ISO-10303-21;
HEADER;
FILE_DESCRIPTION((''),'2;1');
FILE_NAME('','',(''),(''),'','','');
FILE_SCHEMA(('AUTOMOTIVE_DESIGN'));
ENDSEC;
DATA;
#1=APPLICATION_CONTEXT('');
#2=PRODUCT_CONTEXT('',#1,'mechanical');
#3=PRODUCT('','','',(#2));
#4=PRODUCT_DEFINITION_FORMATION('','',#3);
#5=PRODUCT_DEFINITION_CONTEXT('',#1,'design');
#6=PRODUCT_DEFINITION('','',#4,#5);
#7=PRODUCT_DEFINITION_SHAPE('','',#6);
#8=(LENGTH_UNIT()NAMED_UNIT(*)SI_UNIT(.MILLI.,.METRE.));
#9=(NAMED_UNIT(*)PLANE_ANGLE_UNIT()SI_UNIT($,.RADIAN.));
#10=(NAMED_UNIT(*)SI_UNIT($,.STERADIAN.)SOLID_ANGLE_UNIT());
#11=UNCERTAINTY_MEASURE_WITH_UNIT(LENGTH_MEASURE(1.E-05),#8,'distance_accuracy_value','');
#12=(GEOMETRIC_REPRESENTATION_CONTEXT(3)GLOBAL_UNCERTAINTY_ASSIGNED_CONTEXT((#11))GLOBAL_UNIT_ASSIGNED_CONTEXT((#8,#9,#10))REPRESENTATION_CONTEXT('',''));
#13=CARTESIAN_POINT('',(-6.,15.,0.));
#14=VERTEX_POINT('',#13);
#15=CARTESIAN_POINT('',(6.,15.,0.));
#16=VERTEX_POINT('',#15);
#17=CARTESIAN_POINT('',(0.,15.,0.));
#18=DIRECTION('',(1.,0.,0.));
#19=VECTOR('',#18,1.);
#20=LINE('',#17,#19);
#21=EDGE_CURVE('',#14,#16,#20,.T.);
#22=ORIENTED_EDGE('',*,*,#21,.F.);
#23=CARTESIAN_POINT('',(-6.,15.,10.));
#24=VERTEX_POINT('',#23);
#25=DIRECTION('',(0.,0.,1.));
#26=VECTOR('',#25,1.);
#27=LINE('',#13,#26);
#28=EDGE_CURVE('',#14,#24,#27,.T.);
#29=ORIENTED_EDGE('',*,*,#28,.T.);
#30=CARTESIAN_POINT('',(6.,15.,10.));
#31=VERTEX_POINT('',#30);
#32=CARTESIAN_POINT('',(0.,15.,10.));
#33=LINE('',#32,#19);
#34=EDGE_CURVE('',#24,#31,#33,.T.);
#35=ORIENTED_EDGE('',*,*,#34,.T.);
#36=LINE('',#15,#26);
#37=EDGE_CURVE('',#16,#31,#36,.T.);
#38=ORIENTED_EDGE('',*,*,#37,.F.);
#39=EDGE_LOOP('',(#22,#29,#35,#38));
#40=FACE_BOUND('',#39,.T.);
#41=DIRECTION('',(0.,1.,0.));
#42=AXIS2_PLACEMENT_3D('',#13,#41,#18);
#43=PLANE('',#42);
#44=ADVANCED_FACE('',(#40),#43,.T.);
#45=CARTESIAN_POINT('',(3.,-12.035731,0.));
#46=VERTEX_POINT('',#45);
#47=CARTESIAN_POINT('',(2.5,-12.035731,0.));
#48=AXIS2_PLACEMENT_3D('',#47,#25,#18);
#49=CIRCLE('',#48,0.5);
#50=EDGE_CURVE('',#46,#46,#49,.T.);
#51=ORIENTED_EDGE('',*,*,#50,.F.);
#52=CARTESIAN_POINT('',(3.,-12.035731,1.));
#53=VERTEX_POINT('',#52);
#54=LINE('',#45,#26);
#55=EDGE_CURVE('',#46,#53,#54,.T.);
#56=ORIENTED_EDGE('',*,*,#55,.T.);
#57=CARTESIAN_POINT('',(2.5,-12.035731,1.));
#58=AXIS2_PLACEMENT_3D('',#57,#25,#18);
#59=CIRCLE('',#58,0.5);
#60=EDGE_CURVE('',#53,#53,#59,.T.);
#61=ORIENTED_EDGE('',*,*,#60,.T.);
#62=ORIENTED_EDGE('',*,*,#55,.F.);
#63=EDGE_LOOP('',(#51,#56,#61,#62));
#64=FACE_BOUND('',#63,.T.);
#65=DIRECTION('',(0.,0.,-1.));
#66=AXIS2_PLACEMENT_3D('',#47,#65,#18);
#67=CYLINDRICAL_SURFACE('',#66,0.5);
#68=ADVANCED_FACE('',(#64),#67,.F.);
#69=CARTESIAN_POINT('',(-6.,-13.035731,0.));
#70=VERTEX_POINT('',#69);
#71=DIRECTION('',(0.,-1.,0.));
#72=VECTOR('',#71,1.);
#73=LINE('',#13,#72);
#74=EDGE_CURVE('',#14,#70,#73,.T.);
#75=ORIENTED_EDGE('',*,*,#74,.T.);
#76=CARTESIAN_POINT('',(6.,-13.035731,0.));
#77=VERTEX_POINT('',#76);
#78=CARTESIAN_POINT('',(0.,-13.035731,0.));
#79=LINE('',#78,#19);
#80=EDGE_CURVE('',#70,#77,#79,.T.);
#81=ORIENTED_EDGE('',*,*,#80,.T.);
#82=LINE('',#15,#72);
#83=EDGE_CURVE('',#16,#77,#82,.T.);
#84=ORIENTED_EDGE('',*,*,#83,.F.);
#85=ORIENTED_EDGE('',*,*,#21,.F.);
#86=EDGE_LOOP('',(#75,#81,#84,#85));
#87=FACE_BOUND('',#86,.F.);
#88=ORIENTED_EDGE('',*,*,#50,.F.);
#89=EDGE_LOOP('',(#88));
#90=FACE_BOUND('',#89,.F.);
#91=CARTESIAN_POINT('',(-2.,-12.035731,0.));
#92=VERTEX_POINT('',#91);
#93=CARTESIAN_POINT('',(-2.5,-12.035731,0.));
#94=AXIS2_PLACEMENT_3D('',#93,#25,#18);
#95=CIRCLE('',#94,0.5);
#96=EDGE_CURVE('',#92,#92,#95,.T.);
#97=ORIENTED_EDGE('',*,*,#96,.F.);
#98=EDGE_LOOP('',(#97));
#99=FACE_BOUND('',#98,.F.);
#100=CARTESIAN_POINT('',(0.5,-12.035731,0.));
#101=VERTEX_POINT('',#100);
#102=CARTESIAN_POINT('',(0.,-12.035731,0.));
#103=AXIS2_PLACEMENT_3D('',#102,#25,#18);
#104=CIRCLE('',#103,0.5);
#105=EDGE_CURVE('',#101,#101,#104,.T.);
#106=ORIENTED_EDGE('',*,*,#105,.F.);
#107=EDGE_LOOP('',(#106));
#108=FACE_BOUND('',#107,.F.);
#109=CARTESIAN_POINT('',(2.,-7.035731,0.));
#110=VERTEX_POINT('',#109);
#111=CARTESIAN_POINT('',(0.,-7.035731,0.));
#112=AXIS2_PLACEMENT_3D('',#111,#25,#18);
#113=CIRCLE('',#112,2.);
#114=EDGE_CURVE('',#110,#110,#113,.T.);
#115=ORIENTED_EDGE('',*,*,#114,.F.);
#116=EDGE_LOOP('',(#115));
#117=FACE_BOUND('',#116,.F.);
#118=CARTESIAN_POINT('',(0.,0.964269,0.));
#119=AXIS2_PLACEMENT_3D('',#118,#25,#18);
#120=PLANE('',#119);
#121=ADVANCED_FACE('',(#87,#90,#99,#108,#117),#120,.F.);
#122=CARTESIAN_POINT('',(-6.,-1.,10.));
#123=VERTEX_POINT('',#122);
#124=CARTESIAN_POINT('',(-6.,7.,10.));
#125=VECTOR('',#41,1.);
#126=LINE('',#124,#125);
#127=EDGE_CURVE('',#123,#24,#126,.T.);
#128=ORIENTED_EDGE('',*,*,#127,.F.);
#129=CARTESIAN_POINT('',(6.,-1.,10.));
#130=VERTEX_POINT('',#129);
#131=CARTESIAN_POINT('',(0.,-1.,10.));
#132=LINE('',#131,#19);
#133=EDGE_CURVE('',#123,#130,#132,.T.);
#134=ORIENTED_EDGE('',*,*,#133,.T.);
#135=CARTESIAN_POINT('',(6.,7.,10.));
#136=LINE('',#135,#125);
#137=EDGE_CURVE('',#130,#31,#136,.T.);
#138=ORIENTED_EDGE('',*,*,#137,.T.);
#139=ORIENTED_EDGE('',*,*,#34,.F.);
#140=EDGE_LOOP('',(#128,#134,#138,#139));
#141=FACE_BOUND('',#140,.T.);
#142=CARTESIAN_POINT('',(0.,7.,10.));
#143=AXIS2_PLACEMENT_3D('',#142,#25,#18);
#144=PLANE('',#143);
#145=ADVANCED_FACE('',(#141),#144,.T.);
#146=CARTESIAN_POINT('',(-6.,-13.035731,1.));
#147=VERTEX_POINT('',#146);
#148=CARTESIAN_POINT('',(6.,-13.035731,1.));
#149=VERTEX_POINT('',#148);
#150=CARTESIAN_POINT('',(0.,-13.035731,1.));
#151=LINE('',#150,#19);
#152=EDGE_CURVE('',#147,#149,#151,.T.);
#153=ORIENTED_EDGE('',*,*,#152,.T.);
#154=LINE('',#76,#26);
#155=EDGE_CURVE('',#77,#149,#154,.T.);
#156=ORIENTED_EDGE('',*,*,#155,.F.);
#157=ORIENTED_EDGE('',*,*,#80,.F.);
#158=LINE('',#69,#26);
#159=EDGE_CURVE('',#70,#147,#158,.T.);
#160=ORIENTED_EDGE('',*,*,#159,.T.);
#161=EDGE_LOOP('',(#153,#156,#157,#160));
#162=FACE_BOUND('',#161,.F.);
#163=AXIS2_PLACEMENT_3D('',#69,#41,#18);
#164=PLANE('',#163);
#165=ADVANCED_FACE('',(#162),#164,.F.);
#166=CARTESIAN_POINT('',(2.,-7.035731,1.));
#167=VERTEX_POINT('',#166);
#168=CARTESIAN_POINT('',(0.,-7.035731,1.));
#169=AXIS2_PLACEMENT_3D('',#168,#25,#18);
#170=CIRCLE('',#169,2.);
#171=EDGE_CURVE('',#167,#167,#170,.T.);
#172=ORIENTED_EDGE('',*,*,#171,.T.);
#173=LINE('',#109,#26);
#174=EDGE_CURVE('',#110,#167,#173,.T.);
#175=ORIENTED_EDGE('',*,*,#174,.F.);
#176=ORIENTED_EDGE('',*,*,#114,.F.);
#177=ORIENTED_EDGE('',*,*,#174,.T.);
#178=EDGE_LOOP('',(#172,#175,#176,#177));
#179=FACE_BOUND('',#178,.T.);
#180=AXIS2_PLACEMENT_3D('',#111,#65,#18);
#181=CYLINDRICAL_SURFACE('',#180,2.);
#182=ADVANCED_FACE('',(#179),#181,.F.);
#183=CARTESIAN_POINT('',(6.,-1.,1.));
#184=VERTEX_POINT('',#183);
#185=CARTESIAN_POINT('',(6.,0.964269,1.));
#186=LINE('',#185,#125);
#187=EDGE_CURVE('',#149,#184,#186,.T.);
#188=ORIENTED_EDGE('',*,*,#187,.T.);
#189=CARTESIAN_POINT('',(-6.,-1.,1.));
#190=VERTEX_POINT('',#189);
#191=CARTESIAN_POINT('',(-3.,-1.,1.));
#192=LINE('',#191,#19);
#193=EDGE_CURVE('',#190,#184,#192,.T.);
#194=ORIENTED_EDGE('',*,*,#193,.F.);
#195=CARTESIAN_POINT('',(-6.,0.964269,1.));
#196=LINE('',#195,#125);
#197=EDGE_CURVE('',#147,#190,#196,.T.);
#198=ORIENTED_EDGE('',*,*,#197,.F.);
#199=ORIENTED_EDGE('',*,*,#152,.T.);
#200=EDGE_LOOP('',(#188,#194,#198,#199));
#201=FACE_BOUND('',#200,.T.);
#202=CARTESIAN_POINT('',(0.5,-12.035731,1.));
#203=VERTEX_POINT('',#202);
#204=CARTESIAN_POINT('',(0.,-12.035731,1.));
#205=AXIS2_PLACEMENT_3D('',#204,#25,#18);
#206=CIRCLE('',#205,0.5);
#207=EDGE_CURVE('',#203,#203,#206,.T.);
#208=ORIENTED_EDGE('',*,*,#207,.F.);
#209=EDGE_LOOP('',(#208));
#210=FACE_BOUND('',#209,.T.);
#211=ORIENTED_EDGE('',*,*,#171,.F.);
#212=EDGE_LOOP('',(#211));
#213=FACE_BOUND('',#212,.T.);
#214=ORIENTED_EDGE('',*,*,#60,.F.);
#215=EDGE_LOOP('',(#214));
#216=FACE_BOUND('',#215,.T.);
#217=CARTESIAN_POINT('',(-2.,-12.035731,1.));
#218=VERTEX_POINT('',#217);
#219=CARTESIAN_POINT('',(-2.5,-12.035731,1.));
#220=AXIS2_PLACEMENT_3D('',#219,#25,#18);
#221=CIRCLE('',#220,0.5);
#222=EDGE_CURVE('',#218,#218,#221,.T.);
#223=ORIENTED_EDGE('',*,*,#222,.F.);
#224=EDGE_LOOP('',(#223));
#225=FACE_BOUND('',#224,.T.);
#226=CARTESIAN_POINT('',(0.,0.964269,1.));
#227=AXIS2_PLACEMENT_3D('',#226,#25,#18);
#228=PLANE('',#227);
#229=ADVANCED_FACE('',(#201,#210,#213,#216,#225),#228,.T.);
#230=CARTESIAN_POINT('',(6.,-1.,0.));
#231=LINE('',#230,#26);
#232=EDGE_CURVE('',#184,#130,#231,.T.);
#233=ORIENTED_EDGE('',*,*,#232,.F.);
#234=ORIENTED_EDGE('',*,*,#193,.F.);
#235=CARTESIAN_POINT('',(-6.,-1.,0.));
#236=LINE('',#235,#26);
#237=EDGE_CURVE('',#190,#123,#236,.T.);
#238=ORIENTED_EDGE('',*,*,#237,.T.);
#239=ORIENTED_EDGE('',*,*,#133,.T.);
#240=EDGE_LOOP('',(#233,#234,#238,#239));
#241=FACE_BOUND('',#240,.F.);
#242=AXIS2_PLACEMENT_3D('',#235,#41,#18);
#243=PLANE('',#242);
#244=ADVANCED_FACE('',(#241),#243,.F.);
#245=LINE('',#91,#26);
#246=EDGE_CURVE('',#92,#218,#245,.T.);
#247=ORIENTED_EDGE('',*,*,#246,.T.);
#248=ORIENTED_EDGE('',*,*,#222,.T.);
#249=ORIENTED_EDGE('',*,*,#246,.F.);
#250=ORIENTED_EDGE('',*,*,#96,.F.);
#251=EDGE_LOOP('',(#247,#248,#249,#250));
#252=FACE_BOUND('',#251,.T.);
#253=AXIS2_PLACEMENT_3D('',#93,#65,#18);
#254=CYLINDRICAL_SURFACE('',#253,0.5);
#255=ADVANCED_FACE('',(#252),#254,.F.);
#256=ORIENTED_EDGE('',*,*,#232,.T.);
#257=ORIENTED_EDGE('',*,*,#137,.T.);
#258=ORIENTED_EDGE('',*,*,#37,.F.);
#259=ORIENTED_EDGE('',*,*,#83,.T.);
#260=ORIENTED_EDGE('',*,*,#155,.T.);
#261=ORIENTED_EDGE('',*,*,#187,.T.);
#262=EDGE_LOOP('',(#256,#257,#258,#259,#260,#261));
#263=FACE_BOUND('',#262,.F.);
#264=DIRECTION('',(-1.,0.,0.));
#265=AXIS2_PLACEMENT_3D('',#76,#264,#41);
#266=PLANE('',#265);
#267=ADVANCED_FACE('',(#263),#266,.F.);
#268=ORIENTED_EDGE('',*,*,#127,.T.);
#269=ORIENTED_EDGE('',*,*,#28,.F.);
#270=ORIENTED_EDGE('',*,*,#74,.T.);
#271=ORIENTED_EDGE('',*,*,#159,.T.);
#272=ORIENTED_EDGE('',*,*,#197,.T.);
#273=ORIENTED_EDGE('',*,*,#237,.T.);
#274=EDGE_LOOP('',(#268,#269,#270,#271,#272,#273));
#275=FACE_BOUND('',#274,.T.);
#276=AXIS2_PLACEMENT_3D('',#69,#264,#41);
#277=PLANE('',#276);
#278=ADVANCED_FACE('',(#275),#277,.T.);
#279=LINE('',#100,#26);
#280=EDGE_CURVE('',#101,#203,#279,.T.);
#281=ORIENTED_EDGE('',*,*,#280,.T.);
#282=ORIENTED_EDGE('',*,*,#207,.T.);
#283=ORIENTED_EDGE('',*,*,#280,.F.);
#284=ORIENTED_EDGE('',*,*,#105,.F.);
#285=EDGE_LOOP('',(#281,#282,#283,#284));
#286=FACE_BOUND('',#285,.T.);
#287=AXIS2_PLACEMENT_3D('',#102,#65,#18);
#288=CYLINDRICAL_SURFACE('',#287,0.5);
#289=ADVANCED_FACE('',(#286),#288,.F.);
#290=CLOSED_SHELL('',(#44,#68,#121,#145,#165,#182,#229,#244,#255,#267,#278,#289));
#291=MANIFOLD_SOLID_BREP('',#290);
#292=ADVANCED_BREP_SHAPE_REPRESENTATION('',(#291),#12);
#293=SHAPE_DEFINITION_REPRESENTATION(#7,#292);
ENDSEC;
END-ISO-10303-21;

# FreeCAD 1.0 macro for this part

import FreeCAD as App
import Part
import Sketcher
from FreeCAD import Vector


def add_polygon(sketch, points):
    """Adds a closed chain of lines whose ends are joined by coincident constraints."""
    first, n = sketch.GeometryCount, len(points)
    for a, b in zip(points, points[1:] + points[:1]):
        sketch.addGeometry(Part.LineSegment(App.Vector(*a, 0), App.Vector(*b, 0)), False)
    for i in range(n):
        sketch.addConstraint(Sketcher.Constraint("Coincident", first + i, 2, first + (i + 1) % n, 1))

doc = App.newDocument("Part")
body = doc.addObject("PartDesign::Body", "Body")

# Sketch on XY plane
sketch1 = body.newObject("Sketcher::SketchObject", "Sketch")
sketch1.AttachmentSupport = (doc.getObject("XY_Plane"), [""])
sketch1.MapMode = "FlatFace"
add_polygon(sketch1, [(-6, 14.964269), (-6, -13.035731), (6, -13.035731), (6, 14.964269)])  # lines 0-3
sketch1.addGeometry(Part.Circle(Vector(-2.5, -12.035731, 0), Vector(0, 0, 1), 0.5), False)  # 4
sketch1.addGeometry(Part.Circle(Vector(0, -12.035731, 0), Vector(0, 0, 1), 0.5), False)  # 5
sketch1.addGeometry(Part.Circle(Vector(2.5, -12.035731, 0), Vector(0, 0, 1), 0.5), False)  # 6
sketch1.addGeometry(Part.Circle(Vector(0, -7.035731, 0), Vector(0, 0, 1), 2), False)  # 7
sketch1.addConstraint(Sketcher.Constraint("Vertical", 0))
sketch1.addConstraint(Sketcher.Constraint("Horizontal", 1))
sketch1.addConstraint(Sketcher.Constraint("Vertical", 2))
sketch1.addConstraint(Sketcher.Constraint("Horizontal", 3))
sketch1.addConstraint(Sketcher.Constraint("Equal", 4, 5))
sketch1.addConstraint(Sketcher.Constraint("Equal", 5, 6))
sketch1.addConstraint(Sketcher.Constraint("Symmetric", 4, 3, 6, 3, -2))
sketch1.addConstraint(Sketcher.Constraint("PointOnObject", 5, 3, -2))
sketch1.addConstraint(Sketcher.Constraint("PointOnObject", 7, 3, -2))
sketch1.addConstraint(Sketcher.Constraint("Horizontal", 4, 3, 5, 3))
sketch1.addConstraint(Sketcher.Constraint("Diameter", 4, 1.0))
sketch1.addConstraint(Sketcher.Constraint("Diameter", 7, 4.0))
sketch1.addConstraint(Sketcher.Constraint("DistanceX", 1, 1, 1, 2, 12.0))
sketch1.addConstraint(Sketcher.Constraint("DistanceY", 0, 2, 0, 1, 28.0))
sketch1.addConstraint(Sketcher.Constraint("DistanceX", 0, 2, -1, 1, 6.0))
sketch1.addConstraint(Sketcher.Constraint("DistanceX", 4, 3, 6, 3, 5.0))
sketch1.addConstraint(Sketcher.Constraint("DistanceY", 5, 3, 7, 3, 5.0))
sketch1.addConstraint(Sketcher.Constraint("DistanceY", 0, 2, 4, 3, 1.0))
sketch1.addConstraint(Sketcher.Constraint("DistanceY", 4, 3, -1, 1, 12.035731))
pad1 = body.newObject("PartDesign::Pad", "Pad")
pad1.Profile = sketch1
pad1.Length = 1
body2 = doc.addObject("PartDesign::Body", "Body001")

# Sketch on XY plane
sketch2 = body2.newObject("Sketcher::SketchObject", "Sketch001")
sketch2.AttachmentSupport = (doc.getObject("XY_Plane001"), [""])
sketch2.MapMode = "FlatFace"
add_polygon(sketch2, [(-6, 15), (-6, -1), (6, -1), (6, 15)])  # lines 0-3
sketch2.addConstraint(Sketcher.Constraint("Vertical", 0))
sketch2.addConstraint(Sketcher.Constraint("Horizontal", 1))
sketch2.addConstraint(Sketcher.Constraint("Vertical", 2))
sketch2.addConstraint(Sketcher.Constraint("Horizontal", 3))
sketch2.addConstraint(Sketcher.Constraint("DistanceX", 1, 1, 1, 2, 12.0))
sketch2.addConstraint(Sketcher.Constraint("DistanceY", 0, 2, 0, 1, 16.0))
sketch2.addConstraint(Sketcher.Constraint("DistanceX", 0, 2, -1, 1, 6.0))
sketch2.addConstraint(Sketcher.Constraint("DistanceY", 0, 2, -1, 1, 1.0))
pad2 = body2.newObject("PartDesign::Pad", "Pad001")
pad2.Profile = sketch2
pad2.Length = 10
doc.recompute()

boolean = body2.newObject("PartDesign::Boolean", "Boolean")
boolean.Type = "Fuse"
boolean.addObjects([body])

doc.recompute()
